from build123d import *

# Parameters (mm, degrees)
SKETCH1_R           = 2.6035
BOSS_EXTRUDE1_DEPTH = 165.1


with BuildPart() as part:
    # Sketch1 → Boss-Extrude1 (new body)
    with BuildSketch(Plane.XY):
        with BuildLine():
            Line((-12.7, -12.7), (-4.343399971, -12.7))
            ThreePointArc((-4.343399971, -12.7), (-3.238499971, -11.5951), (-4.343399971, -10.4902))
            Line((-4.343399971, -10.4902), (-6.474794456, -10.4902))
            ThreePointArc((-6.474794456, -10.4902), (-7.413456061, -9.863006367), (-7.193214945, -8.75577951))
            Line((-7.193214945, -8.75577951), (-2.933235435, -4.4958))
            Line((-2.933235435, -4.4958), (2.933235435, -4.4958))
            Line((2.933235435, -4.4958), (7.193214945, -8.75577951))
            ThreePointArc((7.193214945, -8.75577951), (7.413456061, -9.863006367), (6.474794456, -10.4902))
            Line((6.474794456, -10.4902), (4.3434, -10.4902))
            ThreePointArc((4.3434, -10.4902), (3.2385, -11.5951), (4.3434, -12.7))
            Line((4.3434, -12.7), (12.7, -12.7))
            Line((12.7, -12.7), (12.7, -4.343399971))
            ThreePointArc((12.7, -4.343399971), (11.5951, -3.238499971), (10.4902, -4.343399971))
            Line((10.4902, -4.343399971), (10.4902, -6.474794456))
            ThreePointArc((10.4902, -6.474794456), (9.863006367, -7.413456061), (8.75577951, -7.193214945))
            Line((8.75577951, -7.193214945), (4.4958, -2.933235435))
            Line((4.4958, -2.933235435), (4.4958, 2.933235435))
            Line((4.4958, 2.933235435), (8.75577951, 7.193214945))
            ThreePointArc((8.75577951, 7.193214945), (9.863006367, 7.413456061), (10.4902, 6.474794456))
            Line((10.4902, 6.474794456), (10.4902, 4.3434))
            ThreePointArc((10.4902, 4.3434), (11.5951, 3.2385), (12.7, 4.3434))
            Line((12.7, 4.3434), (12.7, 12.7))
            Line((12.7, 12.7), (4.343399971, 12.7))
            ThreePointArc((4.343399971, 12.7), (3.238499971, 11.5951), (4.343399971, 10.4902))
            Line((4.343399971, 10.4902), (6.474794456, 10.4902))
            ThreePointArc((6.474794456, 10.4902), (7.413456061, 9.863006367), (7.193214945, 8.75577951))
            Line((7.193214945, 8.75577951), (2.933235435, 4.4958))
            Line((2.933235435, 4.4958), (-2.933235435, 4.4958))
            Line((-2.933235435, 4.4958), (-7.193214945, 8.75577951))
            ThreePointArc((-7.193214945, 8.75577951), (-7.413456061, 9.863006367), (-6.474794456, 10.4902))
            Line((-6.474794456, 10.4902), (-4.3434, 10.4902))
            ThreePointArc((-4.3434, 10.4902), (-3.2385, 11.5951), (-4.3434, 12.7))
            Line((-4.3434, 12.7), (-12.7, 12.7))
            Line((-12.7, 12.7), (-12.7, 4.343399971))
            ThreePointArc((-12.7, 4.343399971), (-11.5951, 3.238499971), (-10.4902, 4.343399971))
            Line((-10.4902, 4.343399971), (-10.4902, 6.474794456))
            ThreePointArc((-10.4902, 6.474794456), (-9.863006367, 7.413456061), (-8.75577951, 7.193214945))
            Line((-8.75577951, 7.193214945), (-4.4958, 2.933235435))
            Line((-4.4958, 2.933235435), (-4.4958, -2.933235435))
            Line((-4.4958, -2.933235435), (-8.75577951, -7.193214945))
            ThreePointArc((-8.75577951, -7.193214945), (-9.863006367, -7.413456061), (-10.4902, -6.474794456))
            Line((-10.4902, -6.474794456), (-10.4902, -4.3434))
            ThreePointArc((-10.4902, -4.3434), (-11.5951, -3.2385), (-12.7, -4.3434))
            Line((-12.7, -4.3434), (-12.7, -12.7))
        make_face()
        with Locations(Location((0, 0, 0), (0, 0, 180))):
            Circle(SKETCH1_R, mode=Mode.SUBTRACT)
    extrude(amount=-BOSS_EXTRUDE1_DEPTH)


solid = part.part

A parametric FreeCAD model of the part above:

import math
import FreeCAD as App
import Part
import Sketcher

V = App.Vector
Q = App.Units.Quantity

doc = App.newDocument("Part")
body = doc.addObject("PartDesign::Body", "Body")

# Sketch on XY plane
sketch1 = body.newObject("Sketcher::SketchObject", "Sketch")
sketch1.AttachmentSupport = (doc.getObject("XY_Plane"), [""])
sketch1.MapMode = "FlatFace"
sketch1.addGeometry(Part.LineSegment(V(-12.7, -12.7, 0), V(-4.3434, -12.7, 0)), False)
sketch1.addGeometry(Part.ArcOfCircle(Part.Circle(V(-4.3434, -11.5951, 0), V(0, 0, 1), 1.1049), math.radians(-90), math.radians(90)), False)
sketch1.addGeometry(Part.LineSegment(V(-4.3434, -10.4902, 0), V(-6.474794, -10.4902, 0)), False)
sketch1.addGeometry(Part.ArcOfCircle(Part.Circle(V(-6.474794, -9.4742, 0), V(0, 0, 1), 1.016), math.radians(135), math.radians(270)), False)
sketch1.addGeometry(Part.LineSegment(V(-7.193215, -8.75578, 0), V(-2.933235, -4.4958, 0)), False)
sketch1.addGeometry(Part.LineSegment(V(-2.933235, -4.4958, 0), V(2.933235, -4.4958, 0)), False)
sketch1.addGeometry(Part.LineSegment(V(2.933235, -4.4958, 0), V(7.193215, -8.75578, 0)), False)
sketch1.addGeometry(Part.ArcOfCircle(Part.Circle(V(6.474794, -9.4742, 0), V(0, 0, 1), 1.016), math.radians(-90), math.radians(45)), False)
sketch1.addGeometry(Part.LineSegment(V(6.474794, -10.4902, 0), V(4.3434, -10.4902, 0)), False)
sketch1.addGeometry(Part.ArcOfCircle(Part.Circle(V(4.3434, -11.5951, 0), V(0, 0, 1), 1.1049), math.radians(90), math.radians(270)), False)
sketch1.addGeometry(Part.LineSegment(V(4.3434, -12.7, 0), V(12.7, -12.7, 0)), False)
sketch1.addGeometry(Part.LineSegment(V(12.7, -12.7, 0), V(12.7, -4.3434, 0)), False)
sketch1.addGeometry(Part.ArcOfCircle(Part.Circle(V(11.5951, -4.3434, 0), V(0, 0, 1), 1.1049), math.radians(0), math.radians(180)), False)
sketch1.addGeometry(Part.LineSegment(V(10.4902, -4.3434, 0), V(10.4902, -6.474794, 0)), False)
sketch1.addGeometry(Part.ArcOfCircle(Part.Circle(V(9.4742, -6.474794, 0), V(0, 0, 1), 1.016), math.radians(-135), math.radians(0)), False)
sketch1.addGeometry(Part.LineSegment(V(8.75578, -7.193215, 0), V(4.4958, -2.933235, 0)), False)
sketch1.addGeometry(Part.LineSegment(V(4.4958, -2.933235, 0), V(4.4958, 2.933235, 0)), False)
sketch1.addGeometry(Part.LineSegment(V(4.4958, 2.933235, 0), V(8.75578, 7.193215, 0)), False)
sketch1.addGeometry(Part.ArcOfCircle(Part.Circle(V(9.4742, 6.474794, 0), V(0, 0, 1), 1.016), math.radians(0), math.radians(135)), False)
sketch1.addGeometry(Part.LineSegment(V(10.4902, 6.474794, 0), V(10.4902, 4.3434, 0)), False)
sketch1.addGeometry(Part.ArcOfCircle(Part.Circle(V(11.5951, 4.3434, 0), V(0, 0, 1), 1.1049), math.radians(180), math.radians(360)), False)
sketch1.addGeometry(Part.LineSegment(V(12.7, 4.3434, 0), V(12.7, 12.7, 0)), False)
sketch1.addGeometry(Part.LineSegment(V(12.7, 12.7, 0), V(4.3434, 12.7, 0)), False)
sketch1.addGeometry(Part.ArcOfCircle(Part.Circle(V(4.3434, 11.5951, 0), V(0, 0, 1), 1.1049), math.radians(90), math.radians(270)), False)
sketch1.addGeometry(Part.LineSegment(V(4.3434, 10.4902, 0), V(6.474794, 10.4902, 0)), False)
sketch1.addGeometry(Part.ArcOfCircle(Part.Circle(V(6.474794, 9.4742, 0), V(0, 0, 1), 1.016), math.radians(-45), math.radians(90)), False)
sketch1.addGeometry(Part.LineSegment(V(7.193215, 8.75578, 0), V(2.933235, 4.4958, 0)), False)
sketch1.addGeometry(Part.LineSegment(V(2.933235, 4.4958, 0), V(-2.933235, 4.4958, 0)), False)
sketch1.addGeometry(Part.LineSegment(V(-2.933235, 4.4958, 0), V(-7.193215, 8.75578, 0)), False)
sketch1.addGeometry(Part.ArcOfCircle(Part.Circle(V(-6.474794, 9.4742, 0), V(0, 0, 1), 1.016), math.radians(90), math.radians(225)), False)
sketch1.addGeometry(Part.LineSegment(V(-6.474794, 10.4902, 0), V(-4.3434, 10.4902, 0)), False)
sketch1.addGeometry(Part.ArcOfCircle(Part.Circle(V(-4.3434, 11.5951, 0), V(0, 0, 1), 1.1049), math.radians(-90), math.radians(90)), False)
sketch1.addGeometry(Part.LineSegment(V(-4.3434, 12.7, 0), V(-12.7, 12.7, 0)), False)
sketch1.addGeometry(Part.LineSegment(V(-12.7, 12.7, 0), V(-12.7, 4.3434, 0)), False)
sketch1.addGeometry(Part.ArcOfCircle(Part.Circle(V(-11.5951, 4.3434, 0), V(0, 0, 1), 1.1049), math.radians(180), math.radians(360)), False)
sketch1.addGeometry(Part.LineSegment(V(-10.4902, 4.3434, 0), V(-10.4902, 6.474794, 0)), False)
sketch1.addGeometry(Part.ArcOfCircle(Part.Circle(V(-9.4742, 6.474794, 0), V(0, 0, 1), 1.016), math.radians(45), math.radians(180)), False)
sketch1.addGeometry(Part.LineSegment(V(-8.75578, 7.193215, 0), V(-4.4958, 2.933235, 0)), False)
sketch1.addGeometry(Part.LineSegment(V(-4.4958, 2.933235, 0), V(-4.4958, -2.933235, 0)), False)
sketch1.addGeometry(Part.LineSegment(V(-4.4958, -2.933235, 0), V(-8.75578, -7.193215, 0)), False)
sketch1.addGeometry(Part.ArcOfCircle(Part.Circle(V(-9.4742, -6.474794, 0), V(0, 0, 1), 1.016), math.radians(180), math.radians(315)), False)
sketch1.addGeometry(Part.LineSegment(V(-10.4902, -6.474794, 0), V(-10.4902, -4.3434, 0)), False)
sketch1.addGeometry(Part.ArcOfCircle(Part.Circle(V(-11.5951, -4.3434, 0), V(0, 0, 1), 1.1049), math.radians(0), math.radians(180)), False)
sketch1.addGeometry(Part.LineSegment(V(-12.7, -4.3434, 0), V(-12.7, -12.7, 0)), False)
sketch1.addGeometry(Part.Circle(V(0, 0, 0), V(0, 0, 1), 2.6035), False)
sketch1.addConstraint(Sketcher.Constraint("Tangent", 0, 2, 1, 1))
sketch1.addConstraint(Sketcher.Constraint("Tangent", 1, 2, 2, 1))
sketch1.addConstraint(Sketcher.Constraint("Tangent", 2, 2, 3, 2))
sketch1.addConstraint(Sketcher.Constraint("Tangent", 3, 1, 4, 1))
sketch1.addConstraint(Sketcher.Constraint("Coincident", 4, 2, 5, 1))
sketch1.addConstraint(Sketcher.Constraint("Coincident", 5, 2, 6, 1))
sketch1.addConstraint(Sketcher.Constraint("Tangent", 6, 2, 7, 2))
sketch1.addConstraint(Sketcher.Constraint("Tangent", 7, 1, 8, 1))
sketch1.addConstraint(Sketcher.Constraint("Tangent", 8, 2, 9, 1))
sketch1.addConstraint(Sketcher.Constraint("Tangent", 9, 2, 10, 1))
sketch1.addConstraint(Sketcher.Constraint("Coincident", 10, 2, 11, 1))
sketch1.addConstraint(Sketcher.Constraint("Tangent", 11, 2, 12, 1))
sketch1.addConstraint(Sketcher.Constraint("Tangent", 12, 2, 13, 1))
sketch1.addConstraint(Sketcher.Constraint("Tangent", 13, 2, 14, 2))
sketch1.addConstraint(Sketcher.Constraint("Tangent", 14, 1, 15, 1))
sketch1.addConstraint(Sketcher.Constraint("Coincident", 15, 2, 16, 1))
sketch1.addConstraint(Sketcher.Constraint("Coincident", 16, 2, 17, 1))
sketch1.addConstraint(Sketcher.Constraint("Tangent", 17, 2, 18, 2))
sketch1.addConstraint(Sketcher.Constraint("Tangent", 18, 1, 19, 1))
sketch1.addConstraint(Sketcher.Constraint("Tangent", 19, 2, 20, 1))
sketch1.addConstraint(Sketcher.Constraint("Tangent", 20, 2, 21, 1))
sketch1.addConstraint(Sketcher.Constraint("Coincident", 21, 2, 22, 1))
sketch1.addConstraint(Sketcher.Constraint("Tangent", 22, 2, 23, 1))
sketch1.addConstraint(Sketcher.Constraint("Tangent", 23, 2, 24, 1))
sketch1.addConstraint(Sketcher.Constraint("Tangent", 24, 2, 25, 2))
sketch1.addConstraint(Sketcher.Constraint("Tangent", 25, 1, 26, 1))
sketch1.addConstraint(Sketcher.Constraint("Coincident", 26, 2, 27, 1))
sketch1.addConstraint(Sketcher.Constraint("Coincident", 27, 2, 28, 1))
sketch1.addConstraint(Sketcher.Constraint("Tangent", 28, 2, 29, 2))
sketch1.addConstraint(Sketcher.Constraint("Tangent", 29, 1, 30, 1))
sketch1.addConstraint(Sketcher.Constraint("Tangent", 30, 2, 31, 1))
sketch1.addConstraint(Sketcher.Constraint("Tangent", 31, 2, 32, 1))
sketch1.addConstraint(Sketcher.Constraint("Coincident", 32, 2, 33, 1))
sketch1.addConstraint(Sketcher.Constraint("Tangent", 33, 2, 34, 1))
sketch1.addConstraint(Sketcher.Constraint("Tangent", 34, 2, 35, 1))
sketch1.addConstraint(Sketcher.Constraint("Tangent", 35, 2, 36, 2))
sketch1.addConstraint(Sketcher.Constraint("Tangent", 36, 1, 37, 1))
sketch1.addConstraint(Sketcher.Constraint("Coincident", 37, 2, 38, 1))
sketch1.addConstraint(Sketcher.Constraint("Coincident", 38, 2, 39, 1))
sketch1.addConstraint(Sketcher.Constraint("Tangent", 39, 2, 40, 2))
sketch1.addConstraint(Sketcher.Constraint("Tangent", 40, 1, 41, 1))
sketch1.addConstraint(Sketcher.Constraint("Tangent", 41, 2, 42, 1))
sketch1.addConstraint(Sketcher.Constraint("Tangent", 42, 2, 43, 1))
sketch1.addConstraint(Sketcher.Constraint("Coincident", 43, 2, 0, 1))
sketch1.addConstraint(Sketcher.Constraint("Horizontal", 0))
sketch1.addConstraint(Sketcher.Constraint("Horizontal", 2))
sketch1.addConstraint(Sketcher.Constraint("Horizontal", 5))
sketch1.addConstraint(Sketcher.Constraint("Horizontal", 8))
sketch1.addConstraint(Sketcher.Constraint("Horizontal", 10))
sketch1.addConstraint(Sketcher.Constraint("Vertical", 11))
sketch1.addConstraint(Sketcher.Constraint("Vertical", 13))
sketch1.addConstraint(Sketcher.Constraint("Vertical", 16))
sketch1.addConstraint(Sketcher.Constraint("Vertical", 19))
sketch1.addConstraint(Sketcher.Constraint("Vertical", 21))
sketch1.addConstraint(Sketcher.Constraint("Horizontal", 22))
sketch1.addConstraint(Sketcher.Constraint("Horizontal", 24))
sketch1.addConstraint(Sketcher.Constraint("Horizontal", 27))
sketch1.addConstraint(Sketcher.Constraint("Horizontal", 30))
sketch1.addConstraint(Sketcher.Constraint("Horizontal", 32))
sketch1.addConstraint(Sketcher.Constraint("Vertical", 33))
sketch1.addConstraint(Sketcher.Constraint("Vertical", 35))
sketch1.addConstraint(Sketcher.Constraint("Vertical", 38))
sketch1.addConstraint(Sketcher.Constraint("Vertical", 41))
sketch1.addConstraint(Sketcher.Constraint("Vertical", 43))
sketch1.addConstraint(Sketcher.Constraint("Coincident", 44, 3, -1, 1))
sketch1.addConstraint(Sketcher.Constraint("Equal", 3, 7))
sketch1.addConstraint(Sketcher.Constraint("Equal", 1, 9))
sketch1.addConstraint(Sketcher.Constraint("Equal", 9, 12))
sketch1.addConstraint(Sketcher.Constraint("Equal", 7, 14))
sketch1.addConstraint(Sketcher.Constraint("Equal", 14, 18))
sketch1.addConstraint(Sketcher.Constraint("Equal", 12, 20))
sketch1.addConstraint(Sketcher.Constraint("Equal", 20, 23))
sketch1.addConstraint(Sketcher.Constraint("Equal", 18, 25))
sketch1.addConstraint(Sketcher.Constraint("Equal", 25, 29))
sketch1.addConstraint(Sketcher.Constraint("Equal", 23, 31))
sketch1.addConstraint(Sketcher.Constraint("Equal", 31, 34))
sketch1.addConstraint(Sketcher.Constraint("Equal", 29, 36))
sketch1.addConstraint(Sketcher.Constraint("Equal", 36, 40))
sketch1.addConstraint(Sketcher.Constraint("Equal", 34, 42))
sketch1.addConstraint(Sketcher.Constraint("Symmetric", 1, 3, 23, 3, -1, 1))
sketch1.addConstraint(Sketcher.Constraint("Symmetric", 7, 3, 29, 3, -1, 1))
sketch1.addConstraint(Sketcher.Constraint("Symmetric", 12, 3, 34, 3, -1, 1))
sketch1.addConstraint(Sketcher.Constraint("Symmetric", 18, 3, 40, 3, -1, 1))
sketch1.addConstraint(Sketcher.Constraint("Symmetric", 3, 1, 25, 1, -1, 1))
sketch1.addConstraint(Sketcher.Constraint("Symmetric", 5, 2, 27, 2, -1, 1))
sketch1.addConstraint(Sketcher.Constraint("Symmetric", 14, 1, 36, 1, -1, 1))
sketch1.addConstraint(Sketcher.Constraint("Symmetric", 16, 2, 38, 2, -1, 1))
sketch1.addConstraint(Sketcher.Constraint("Symmetric", 3, 3, 7, 3, -2))
sketch1.addConstraint(Sketcher.Constraint("Symmetric", 20, 3, 34, 3, -2))
sketch1.addConstraint(Sketcher.Constraint("Symmetric", 17, 2, 36, 1, -2))
sketch1.addConstraint(Sketcher.Constraint("Perpendicular", 4, 6))
sketch1.addConstraint(Sketcher.Constraint("Parallel", 6, 15))
sketch1.addConstraint(Sketcher.Constraint("Perpendicular", 15, 17))
sketch1.addConstraint(Sketcher.Constraint("Horizontal", 12, 3, 42, 3))
sketch1.addConstraint(Sketcher.Constraint("Vertical", 9, 3, 23, 3))
sketch1.addConstraint(Sketcher.Constraint("Vertical", 1, 3, 31, 3))
sketch1.addConstraint(Sketcher.Constraint("Equal", 32, 11))
sketch1.addConstraint(Sketcher.Constraint("Equal", 30, 13))
sketch1.addConstraint(Sketcher.Constraint("Equal", 27, 16))
sketch1.addConstraint(Sketcher.Constraint("Equal", 6, 15))
sketch1.addConstraint(Sketcher.Constraint("Radius", 3, Q("0.04 in")))
sketch1.addConstraint(Sketcher.Constraint("Diameter", 44, Q("0.205 in")))
sketch1.addConstraint(Sketcher.Constraint("DistanceY", 0, 2, -1, 1, Q("0.5 in")))
sketch1.addConstraint(Sketcher.Constraint("Radius", 1, Q("0.0435 in")))
sketch1.addConstraint(Sketcher.Constraint("DistanceX", 0, 1, 0, 2, Q("0.329 in")))
sketch1.addConstraint(Sketcher.Constraint("DistanceY", 4, 2, -1, 1, Q("0.177 in")))
sketch1.addConstraint(Sketcher.Constraint("DistanceX", 5, 1, 5, 2, Q("5.866471 mm")))
pad1 = body.newObject("PartDesign::Pad", "Pad")
pad1.Profile = sketch1
pad1.Length = Q("6.5 in")
pad1.Reversed = True

doc.recompute()
